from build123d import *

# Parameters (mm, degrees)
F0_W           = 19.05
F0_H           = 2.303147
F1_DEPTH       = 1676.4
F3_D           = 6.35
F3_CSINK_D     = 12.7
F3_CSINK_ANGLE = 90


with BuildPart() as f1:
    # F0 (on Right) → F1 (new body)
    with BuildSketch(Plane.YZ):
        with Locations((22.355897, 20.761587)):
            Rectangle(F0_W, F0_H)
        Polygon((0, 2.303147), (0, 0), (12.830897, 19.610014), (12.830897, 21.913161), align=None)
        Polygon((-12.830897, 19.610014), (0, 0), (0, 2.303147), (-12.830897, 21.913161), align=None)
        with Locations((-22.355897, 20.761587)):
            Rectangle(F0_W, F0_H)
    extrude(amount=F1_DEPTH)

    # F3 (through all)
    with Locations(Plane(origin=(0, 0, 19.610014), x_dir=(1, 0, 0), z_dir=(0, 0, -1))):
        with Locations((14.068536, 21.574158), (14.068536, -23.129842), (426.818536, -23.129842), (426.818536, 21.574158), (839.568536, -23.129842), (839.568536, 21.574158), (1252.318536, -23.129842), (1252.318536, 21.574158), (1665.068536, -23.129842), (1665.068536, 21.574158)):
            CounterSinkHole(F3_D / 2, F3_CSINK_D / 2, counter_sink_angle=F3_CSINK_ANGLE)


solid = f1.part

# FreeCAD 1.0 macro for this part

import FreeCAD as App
import Part
import Sketcher
Q = App.Units.Quantity


def add_polygon(sketch, points):
    """Adds a closed chain of lines whose ends are joined by coincident constraints."""
    first, n = sketch.GeometryCount, len(points)
    for a, b in zip(points, points[1:] + points[:1]):
        sketch.addGeometry(Part.LineSegment(App.Vector(*a, 0), App.Vector(*b, 0)), False)
    for i in range(n):
        sketch.addConstraint(Sketcher.Constraint("Coincident", first + i, 2, first + (i + 1) % n, 1))

doc = App.newDocument("Part")
params = doc.addObject("Spreadsheet::Sheet", "Params")
for row, (alias, value) in enumerate([
    ("sketch1_width", "0.75 in"),
    ("pad1_length", "66 in"),
    ("sketch2_diameter", "0.25 in"),
    ("hole_diameter", "0.25 in"),
    ("hole_csink_diameter", "0.5 in"),
], start=1):
    params.set(f"A{row}", alias)
    params.set(f"B{row}", "=" + value)
    params.setAlias(f"B{row}", alias)

body = doc.addObject("PartDesign::Body", "Body")

# Sketch on YZ plane
sketch1 = body.newObject("Sketcher::SketchObject", "Sketch")
sketch1.AttachmentSupport = (doc.getObject("YZ_Plane"), [""])
sketch1.MapMode = "FlatFace"
add_polygon(sketch1, [(12.8, 19.6), (31.9, 19.6), (31.9, 21.9), (12.8, 21.9), (0, 2.3), (-12.8, 21.9), (-31.9, 21.9), (-31.9, 19.6), (-12.8, 19.6), (0, 0)])  # lines 0-9
sketch1.addConstraint([
    Sketcher.Constraint("Horizontal", 0),
    Sketcher.Constraint("Vertical", 1),
    Sketcher.Constraint("Horizontal", 2),
    Sketcher.Constraint("Horizontal", 5),
    Sketcher.Constraint("Vertical", 6),
    Sketcher.Constraint("Horizontal", 7),
    Sketcher.Constraint("Coincident", 8, 2, -1, 1),
    Sketcher.Constraint("Symmetric", 2, 2, 4, 2, -2),
    Sketcher.Constraint("Symmetric", 0, 2, 6, 2, -2),
    Sketcher.Constraint("PointOnObject", 3, 2, -2),
    Sketcher.Constraint("Parallel", 4, 8),
    Sketcher.Constraint("Parallel", 3, 9),
    Sketcher.Constraint("Vertical", 4, 2, 7, 2),
    Sketcher.Constraint("DistanceX", 0, 1, 0, 2, Q("0.75 in")),
    Sketcher.Constraint("DistanceY", 1, 1, 1, 2, Q("2.303147 mm")),
    Sketcher.Constraint("DistanceY", -1, 1, 1, 2, Q("21.913161 mm")),
    Sketcher.Constraint("Distance", 3, Q("23.434687 mm")),
])
sketch1.setExpression("Constraints[23]", "Params.sketch1_width")
pad1 = body.newObject("PartDesign::Pad", "Pad")
pad1.Profile = sketch1
pad1.setExpression("Length", "Params.pad1_length")

# Sketch on XY plane
sketch2 = body.newObject("Sketcher::SketchObject", "Sketch001")
sketch2.AttachmentSupport = (doc.getObject("XY_Plane"), [""])
sketch2.MapMode = "FlatFace"
sketch2.AttachmentOffset = App.Placement(App.Vector(0, 0, 19.610014), App.Rotation())
sketch2.addGeometry([
    Part.Circle(App.Vector(14.1, -21.6, 0), App.Vector(0, 0, 1), 3.2),  # 0
    Part.Circle(App.Vector(14.1, 23.1, 0), App.Vector(0, 0, 1), 3.2),  # 1
    Part.Circle(App.Vector(426.8, 23.1, 0), App.Vector(0, 0, 1), 3.2),  # 2
    Part.Circle(App.Vector(426.8, -21.6, 0), App.Vector(0, 0, 1), 3.2),  # 3
    Part.Circle(App.Vector(839.6, 23.1, 0), App.Vector(0, 0, 1), 3.2),  # 4
    Part.Circle(App.Vector(839.6, -21.6, 0), App.Vector(0, 0, 1), 3.2),  # 5
    Part.Circle(App.Vector(1252.3, 23.1, 0), App.Vector(0, 0, 1), 3.2),  # 6
    Part.Circle(App.Vector(1252.3, -21.6, 0), App.Vector(0, 0, 1), 3.2),  # 7
    Part.Circle(App.Vector(1665.1, 23.1, 0), App.Vector(0, 0, 1), 3.2),  # 8
    Part.Circle(App.Vector(1665.1, -21.6, 0), App.Vector(0, 0, 1), 3.2),  # 9
], False)
sketch2.addConstraint([
    Sketcher.Constraint("Equal", 0, 1),
    Sketcher.Constraint("Equal", 1, 2),
    Sketcher.Constraint("Equal", 2, 3),
    Sketcher.Constraint("Equal", 3, 4),
    Sketcher.Constraint("Equal", 4, 5),
    Sketcher.Constraint("Equal", 5, 6),
    Sketcher.Constraint("Equal", 6, 7),
    Sketcher.Constraint("Equal", 7, 8),
    Sketcher.Constraint("Equal", 8, 9),
    Sketcher.Constraint("Horizontal", 1, 3, 2, 3),
    Sketcher.Constraint("Horizontal", 0, 3, 3, 3),
    Sketcher.Constraint("Horizontal", 2, 3, 4, 3),
    Sketcher.Constraint("Horizontal", 3, 3, 5, 3),
    Sketcher.Constraint("Horizontal", 4, 3, 6, 3),
    Sketcher.Constraint("Horizontal", 5, 3, 7, 3),
    Sketcher.Constraint("Horizontal", 6, 3, 8, 3),
    Sketcher.Constraint("Horizontal", 7, 3, 9, 3),
    Sketcher.Constraint("Vertical", 0, 3, 1, 3),
    Sketcher.Constraint("Vertical", 2, 3, 3, 3),
    Sketcher.Constraint("Vertical", 4, 3, 5, 3),
    Sketcher.Constraint("Vertical", 6, 3, 7, 3),
    Sketcher.Constraint("Vertical", 8, 3, 9, 3),
    Sketcher.Constraint("Diameter", 0, Q("0.25 in")),
    Sketcher.Constraint("DistanceX", 1, 3, 4, 3, Q("32.5 in")),
    Sketcher.Constraint("DistanceX", 2, 3, 6, 3, Q("32.5 in")),
    Sketcher.Constraint("DistanceX", 4, 3, 8, 3, Q("32.5 in")),
    Sketcher.Constraint("DistanceY", 0, 3, 1, 3, Q("1.76 in")),
    Sketcher.Constraint("DistanceX", 1, 3, 2, 3, Q("16.25 in")),
    Sketcher.Constraint("DistanceY", 0, 3, -1, 1, Q("21.574158 mm")),
    Sketcher.Constraint("DistanceX", -1, 1, 0, 3, Q("14.068536 mm")),
])
sketch2.setExpression("Constraints[22]", "Params.sketch2_diameter")
doc.recompute()
hole = body.newObject("PartDesign::Hole", "Hole")
hole.Profile = sketch2
hole.ThreadType = "None"
hole.setExpression("Diameter", "Params.hole_diameter")
hole.DepthType = "ThroughAll"
hole.HoleCutType = "Countersink"
hole.setExpression("HoleCutDiameter", "Params.hole_csink_diameter")
hole.HoleCutCountersinkAngle = 90
hole.Reversed = True

doc.recompute()
